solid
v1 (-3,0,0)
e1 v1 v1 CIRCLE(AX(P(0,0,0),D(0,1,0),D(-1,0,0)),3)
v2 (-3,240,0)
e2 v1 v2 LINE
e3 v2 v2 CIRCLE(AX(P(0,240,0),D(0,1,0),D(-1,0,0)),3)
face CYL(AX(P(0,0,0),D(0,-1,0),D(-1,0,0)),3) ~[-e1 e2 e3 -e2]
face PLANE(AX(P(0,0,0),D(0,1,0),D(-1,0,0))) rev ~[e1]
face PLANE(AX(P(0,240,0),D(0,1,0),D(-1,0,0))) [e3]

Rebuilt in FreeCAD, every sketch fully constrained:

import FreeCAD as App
import Part
import Sketcher

doc = App.newDocument("Part")
body = doc.addObject("PartDesign::Body", "Body")

# Sketch on XZ plane
sketch1 = body.newObject("Sketcher::SketchObject", "Sketch")
sketch1.AttachmentSupport = (doc.getObject("XZ_Plane"), [""])
sketch1.MapMode = "FlatFace"
sketch1.addGeometry(Part.Circle(App.Vector(0, 0, 0), App.Vector(0, 0, 1), 3), False)
sketch1.addConstraint([
    Sketcher.Constraint("Coincident", 0, 3, -1, 1),
    Sketcher.Constraint("Diameter", 0, 6.0),
])
pad1 = body.newObject("PartDesign::Pad", "Pad")
pad1.Profile = sketch1
pad1.Length = 240
pad1.Reversed = True

doc.recompute()
